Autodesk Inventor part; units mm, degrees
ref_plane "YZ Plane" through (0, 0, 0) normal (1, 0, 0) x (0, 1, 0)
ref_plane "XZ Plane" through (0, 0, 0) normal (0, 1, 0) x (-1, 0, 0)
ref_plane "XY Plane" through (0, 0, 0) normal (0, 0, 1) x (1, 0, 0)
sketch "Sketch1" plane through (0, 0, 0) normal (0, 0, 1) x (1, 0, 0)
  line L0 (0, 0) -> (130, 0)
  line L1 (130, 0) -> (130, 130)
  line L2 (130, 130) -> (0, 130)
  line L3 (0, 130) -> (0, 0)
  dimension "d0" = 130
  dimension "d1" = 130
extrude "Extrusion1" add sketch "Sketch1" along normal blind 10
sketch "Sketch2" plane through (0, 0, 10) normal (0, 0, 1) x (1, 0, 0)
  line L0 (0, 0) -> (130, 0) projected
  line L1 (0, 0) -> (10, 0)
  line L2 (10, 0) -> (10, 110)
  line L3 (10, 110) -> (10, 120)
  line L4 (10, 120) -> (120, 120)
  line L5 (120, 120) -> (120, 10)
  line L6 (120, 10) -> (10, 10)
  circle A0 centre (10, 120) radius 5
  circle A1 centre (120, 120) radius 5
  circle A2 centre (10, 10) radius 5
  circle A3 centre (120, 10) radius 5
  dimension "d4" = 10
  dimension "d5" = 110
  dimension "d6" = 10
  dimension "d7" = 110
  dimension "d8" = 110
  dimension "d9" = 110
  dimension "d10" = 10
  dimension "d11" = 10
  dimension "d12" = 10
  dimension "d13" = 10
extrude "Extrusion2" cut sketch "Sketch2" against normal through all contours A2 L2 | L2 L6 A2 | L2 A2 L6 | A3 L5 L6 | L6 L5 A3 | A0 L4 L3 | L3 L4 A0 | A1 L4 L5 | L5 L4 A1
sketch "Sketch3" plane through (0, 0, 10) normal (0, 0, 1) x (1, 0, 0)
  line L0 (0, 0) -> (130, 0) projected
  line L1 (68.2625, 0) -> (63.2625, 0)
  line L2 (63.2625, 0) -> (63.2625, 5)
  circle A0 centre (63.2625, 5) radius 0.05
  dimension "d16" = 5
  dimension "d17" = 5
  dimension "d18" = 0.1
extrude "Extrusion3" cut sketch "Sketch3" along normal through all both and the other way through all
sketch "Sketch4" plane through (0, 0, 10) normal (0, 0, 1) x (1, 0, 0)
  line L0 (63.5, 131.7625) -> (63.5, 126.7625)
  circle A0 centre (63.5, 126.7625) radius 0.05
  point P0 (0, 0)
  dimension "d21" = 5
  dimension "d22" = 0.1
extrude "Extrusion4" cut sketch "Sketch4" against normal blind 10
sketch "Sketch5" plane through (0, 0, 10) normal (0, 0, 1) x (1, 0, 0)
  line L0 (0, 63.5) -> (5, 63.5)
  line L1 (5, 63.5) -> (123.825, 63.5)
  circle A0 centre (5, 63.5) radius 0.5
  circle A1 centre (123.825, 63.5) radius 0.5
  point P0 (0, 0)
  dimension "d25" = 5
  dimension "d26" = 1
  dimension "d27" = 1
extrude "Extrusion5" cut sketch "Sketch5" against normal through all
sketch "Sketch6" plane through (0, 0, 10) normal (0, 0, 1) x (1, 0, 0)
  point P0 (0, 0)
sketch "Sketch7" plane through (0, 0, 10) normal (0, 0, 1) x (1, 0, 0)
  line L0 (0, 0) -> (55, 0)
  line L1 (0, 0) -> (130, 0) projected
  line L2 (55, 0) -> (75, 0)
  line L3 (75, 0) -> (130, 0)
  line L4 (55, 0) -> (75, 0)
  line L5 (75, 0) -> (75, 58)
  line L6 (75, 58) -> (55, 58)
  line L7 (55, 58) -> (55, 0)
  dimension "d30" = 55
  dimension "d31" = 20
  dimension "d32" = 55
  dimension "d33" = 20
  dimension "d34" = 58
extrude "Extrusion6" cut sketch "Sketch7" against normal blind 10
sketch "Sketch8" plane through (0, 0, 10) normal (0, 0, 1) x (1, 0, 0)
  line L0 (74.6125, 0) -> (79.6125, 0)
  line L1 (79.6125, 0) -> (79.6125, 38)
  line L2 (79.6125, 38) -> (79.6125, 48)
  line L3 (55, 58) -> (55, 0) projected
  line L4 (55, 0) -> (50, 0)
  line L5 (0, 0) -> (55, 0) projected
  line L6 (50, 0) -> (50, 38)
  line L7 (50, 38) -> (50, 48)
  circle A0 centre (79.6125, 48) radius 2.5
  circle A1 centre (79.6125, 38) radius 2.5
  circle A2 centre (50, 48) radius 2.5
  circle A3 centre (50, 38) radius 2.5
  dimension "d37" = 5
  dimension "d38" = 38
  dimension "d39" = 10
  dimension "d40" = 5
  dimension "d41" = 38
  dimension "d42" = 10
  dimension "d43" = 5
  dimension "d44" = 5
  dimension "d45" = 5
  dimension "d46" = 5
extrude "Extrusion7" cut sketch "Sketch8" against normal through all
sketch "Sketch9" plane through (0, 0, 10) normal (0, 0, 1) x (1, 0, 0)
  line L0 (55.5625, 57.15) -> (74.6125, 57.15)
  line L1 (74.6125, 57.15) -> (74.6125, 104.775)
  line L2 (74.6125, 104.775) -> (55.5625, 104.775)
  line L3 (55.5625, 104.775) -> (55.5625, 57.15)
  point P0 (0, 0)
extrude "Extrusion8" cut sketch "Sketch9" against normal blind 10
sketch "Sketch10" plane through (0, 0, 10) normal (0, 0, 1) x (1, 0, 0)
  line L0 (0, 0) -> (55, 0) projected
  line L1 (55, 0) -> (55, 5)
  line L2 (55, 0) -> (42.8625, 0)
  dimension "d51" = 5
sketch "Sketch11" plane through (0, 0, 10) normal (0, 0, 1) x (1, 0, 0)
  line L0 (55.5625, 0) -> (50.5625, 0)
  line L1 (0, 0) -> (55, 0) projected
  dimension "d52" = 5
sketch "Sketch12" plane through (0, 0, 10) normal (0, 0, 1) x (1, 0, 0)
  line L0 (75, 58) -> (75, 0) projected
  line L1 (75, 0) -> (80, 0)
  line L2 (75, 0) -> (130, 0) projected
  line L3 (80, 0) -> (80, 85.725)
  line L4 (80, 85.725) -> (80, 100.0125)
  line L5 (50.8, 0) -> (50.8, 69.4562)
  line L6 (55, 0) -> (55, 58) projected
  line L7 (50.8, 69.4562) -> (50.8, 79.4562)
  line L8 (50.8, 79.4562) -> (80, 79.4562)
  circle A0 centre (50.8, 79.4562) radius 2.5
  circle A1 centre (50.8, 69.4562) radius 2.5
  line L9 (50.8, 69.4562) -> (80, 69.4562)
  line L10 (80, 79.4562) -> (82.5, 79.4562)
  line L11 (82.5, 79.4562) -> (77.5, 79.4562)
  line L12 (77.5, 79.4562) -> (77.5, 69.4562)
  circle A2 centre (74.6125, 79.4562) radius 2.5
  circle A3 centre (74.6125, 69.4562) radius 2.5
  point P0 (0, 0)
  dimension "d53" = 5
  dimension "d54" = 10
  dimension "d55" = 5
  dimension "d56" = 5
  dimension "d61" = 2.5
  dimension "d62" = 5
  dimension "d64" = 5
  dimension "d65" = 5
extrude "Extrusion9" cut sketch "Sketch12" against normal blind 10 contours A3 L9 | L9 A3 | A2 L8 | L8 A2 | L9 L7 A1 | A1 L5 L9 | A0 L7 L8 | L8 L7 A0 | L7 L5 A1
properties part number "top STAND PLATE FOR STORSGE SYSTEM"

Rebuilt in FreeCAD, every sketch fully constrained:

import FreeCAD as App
import Part
import Sketcher

doc = App.newDocument("Part")
body = doc.addObject("PartDesign::Body", "Body")

# Sketch on XY plane
sketch1 = body.newObject("Sketcher::SketchObject", "Sketch")
sketch1.AttachmentSupport = (doc.getObject("XY_Plane"), [""])
sketch1.MapMode = "FlatFace"
sketch1.addGeometry(Part.LineSegment(App.Vector(0, 130, 0), App.Vector(0, 0, 0)), False)
sketch1.addGeometry(Part.LineSegment(App.Vector(0, 0, 0), App.Vector(130, 0, 0)), False)
sketch1.addGeometry(Part.LineSegment(App.Vector(130, 0, 0), App.Vector(130, 130, 0)), False)
sketch1.addGeometry(Part.LineSegment(App.Vector(130, 130, 0), App.Vector(0, 130, 0)), False)
sketch1.addConstraint(Sketcher.Constraint("Coincident", 0, 2, 1, 1))
sketch1.addConstraint(Sketcher.Constraint("Coincident", 1, 2, 2, 1))
sketch1.addConstraint(Sketcher.Constraint("Coincident", 2, 2, 3, 1))
sketch1.addConstraint(Sketcher.Constraint("Coincident", 3, 2, 0, 1))
sketch1.addConstraint(Sketcher.Constraint("Vertical", 0))
sketch1.addConstraint(Sketcher.Constraint("Horizontal", 1))
sketch1.addConstraint(Sketcher.Constraint("Vertical", 2))
sketch1.addConstraint(Sketcher.Constraint("Horizontal", 3))
sketch1.addConstraint(Sketcher.Constraint("Coincident", 0, 2, -1, 1))
sketch1.addConstraint(Sketcher.Constraint("Equal", 3, 0))
sketch1.addConstraint(Sketcher.Constraint("DistanceX", 1, 1, 1, 2, 130.0))
pad1 = body.newObject("PartDesign::Pad", "Pad")
pad1.Profile = sketch1
pad1.Length = 10

# Sketch on XY plane
sketch2 = body.newObject("Sketcher::SketchObject", "Sketch001")
sketch2.AttachmentSupport = (doc.getObject("XY_Plane"), [""])
sketch2.MapMode = "FlatFace"
sketch2.AttachmentOffset = App.Placement(App.Vector(0, 0, 10), App.Rotation())
sketch2.addGeometry(Part.Circle(App.Vector(10, 10, 0), App.Vector(0, 0, 1), 5), False)
sketch2.addGeometry(Part.Circle(App.Vector(120, 10, 0), App.Vector(0, 0, 1), 5), False)
sketch2.addGeometry(Part.Circle(App.Vector(10, 120, 0), App.Vector(0, 0, 1), 5), False)
sketch2.addGeometry(Part.Circle(App.Vector(120, 120, 0), App.Vector(0, 0, 1), 5), False)
sketch2.addConstraint(Sketcher.Constraint("Equal", 0, 1))
sketch2.addConstraint(Sketcher.Constraint("Equal", 1, 2))
sketch2.addConstraint(Sketcher.Constraint("Equal", 2, 3))
sketch2.addConstraint(Sketcher.Constraint("Horizontal", 0, 3, 1, 3))
sketch2.addConstraint(Sketcher.Constraint("Horizontal", 2, 3, 3, 3))
sketch2.addConstraint(Sketcher.Constraint("Vertical", 0, 3, 2, 3))
sketch2.addConstraint(Sketcher.Constraint("Vertical", 1, 3, 3, 3))
sketch2.addConstraint(Sketcher.Constraint("Diameter", 0, 10.0))
sketch2.addConstraint(Sketcher.Constraint("DistanceX", -1, 1, 0, 3, 10.0))
sketch2.addConstraint(Sketcher.Constraint("DistanceY", -1, 1, 0, 3, 10.0))
sketch2.addConstraint(Sketcher.Constraint("DistanceX", 0, 3, 1, 3, 110.0))
sketch2.addConstraint(Sketcher.Constraint("DistanceY", 0, 3, 2, 3, 110.0))
pocket1 = body.newObject("PartDesign::Pocket", "Pocket")
pocket1.Profile = sketch2
pocket1.Type = "ThroughAll"

# Sketch on XY plane
sketch3 = body.newObject("Sketcher::SketchObject", "Sketch002")
sketch3.AttachmentSupport = (doc.getObject("XY_Plane"), [""])
sketch3.MapMode = "FlatFace"
sketch3.AttachmentOffset = App.Placement(App.Vector(0, 0, 10), App.Rotation())
sketch3.addGeometry(Part.Circle(App.Vector(63.26, 5, 0), App.Vector(0, 0, 1), 0.05), False)
sketch3.addConstraint(Sketcher.Constraint("Diameter", 0, 0.1))
sketch3.addConstraint(Sketcher.Constraint("DistanceY", -1, 1, 0, 3, 5.0))
sketch3.addConstraint(Sketcher.Constraint("DistanceX", -1, 1, 0, 3, 63.2625))
pocket2 = body.newObject("PartDesign::Pocket", "Pocket001")
pocket2.Profile = sketch3
pocket2.Type = "ThroughAll"
pocket2.Midplane = True

# Sketch on XY plane
sketch4 = body.newObject("Sketcher::SketchObject", "Sketch003")
sketch4.AttachmentSupport = (doc.getObject("XY_Plane"), [""])
sketch4.MapMode = "FlatFace"
sketch4.AttachmentOffset = App.Placement(App.Vector(0, 0, 10), App.Rotation())
sketch4.addGeometry(Part.Circle(App.Vector(63.5, 126.76, 0), App.Vector(0, 0, 1), 0.05), False)
sketch4.addConstraint(Sketcher.Constraint("Diameter", 0, 0.1))
sketch4.addConstraint(Sketcher.Constraint("DistanceX", -1, 1, 0, 3, 63.5))
sketch4.addConstraint(Sketcher.Constraint("DistanceY", -1, 1, 0, 3, 126.7625))
pocket3 = body.newObject("PartDesign::Pocket", "Pocket002")
pocket3.Profile = sketch4
pocket3.Length = 10

# Sketch on XY plane
sketch5 = body.newObject("Sketcher::SketchObject", "Sketch004")
sketch5.AttachmentSupport = (doc.getObject("XY_Plane"), [""])
sketch5.MapMode = "FlatFace"
sketch5.AttachmentOffset = App.Placement(App.Vector(0, 0, 10), App.Rotation())
sketch5.addGeometry(Part.Circle(App.Vector(5, 63.5, 0), App.Vector(0, 0, 1), 0.5), False)
sketch5.addGeometry(Part.Circle(App.Vector(123.8, 63.5, 0), App.Vector(0, 0, 1), 0.5), False)
sketch5.addConstraint(Sketcher.Constraint("Equal", 0, 1))
sketch5.addConstraint(Sketcher.Constraint("Horizontal", 0, 3, 1, 3))
sketch5.addConstraint(Sketcher.Constraint("Diameter", 0, 1.0))
sketch5.addConstraint(Sketcher.Constraint("DistanceX", -1, 1, 0, 3, 5.0))
sketch5.addConstraint(Sketcher.Constraint("DistanceY", -1, 1, 0, 3, 63.5))
sketch5.addConstraint(Sketcher.Constraint("DistanceX", -1, 1, 1, 3, 123.825))
pocket4 = body.newObject("PartDesign::Pocket", "Pocket003")
pocket4.Profile = sketch5
pocket4.Type = "ThroughAll"

# Sketch on XY plane
sketch6 = body.newObject("Sketcher::SketchObject", "Sketch005")
sketch6.AttachmentSupport = (doc.getObject("XY_Plane"), [""])
sketch6.MapMode = "FlatFace"
sketch6.AttachmentOffset = App.Placement(App.Vector(0, 0, 10), App.Rotation())
sketch6.addGeometry(Part.LineSegment(App.Vector(55, 58, 0), App.Vector(55, 0, 0)), False)
sketch6.addGeometry(Part.LineSegment(App.Vector(55, 0, 0), App.Vector(75, 0, 0)), False)
sketch6.addGeometry(Part.LineSegment(App.Vector(75, 0, 0), App.Vector(75, 58, 0)), False)
sketch6.addGeometry(Part.LineSegment(App.Vector(75, 58, 0), App.Vector(55, 58, 0)), False)
sketch6.addConstraint(Sketcher.Constraint("Coincident", 0, 2, 1, 1))
sketch6.addConstraint(Sketcher.Constraint("Coincident", 1, 2, 2, 1))
sketch6.addConstraint(Sketcher.Constraint("Coincident", 2, 2, 3, 1))
sketch6.addConstraint(Sketcher.Constraint("Coincident", 3, 2, 0, 1))
sketch6.addConstraint(Sketcher.Constraint("Vertical", 0))
sketch6.addConstraint(Sketcher.Constraint("Horizontal", 1))
sketch6.addConstraint(Sketcher.Constraint("Vertical", 2))
sketch6.addConstraint(Sketcher.Constraint("Horizontal", 3))
sketch6.addConstraint(Sketcher.Constraint("PointOnObject", 0, 2, -1))
sketch6.addConstraint(Sketcher.Constraint("DistanceX", 1, 1, 1, 2, 20.0))
sketch6.addConstraint(Sketcher.Constraint("DistanceY", 0, 2, 0, 1, 58.0))
sketch6.addConstraint(Sketcher.Constraint("DistanceX", -1, 1, 0, 2, 55.0))
pocket5 = body.newObject("PartDesign::Pocket", "Pocket004")
pocket5.Profile = sketch6
pocket5.Length = 10

# Sketch on XY plane
sketch7 = body.newObject("Sketcher::SketchObject", "Sketch006")
sketch7.AttachmentSupport = (doc.getObject("XY_Plane"), [""])
sketch7.MapMode = "FlatFace"
sketch7.AttachmentOffset = App.Placement(App.Vector(0, 0, 10), App.Rotation())
sketch7.addGeometry(Part.Circle(App.Vector(79.6, 38, 0), App.Vector(0, 0, 1), 2.5), False)
sketch7.addGeometry(Part.Circle(App.Vector(79.6, 48, 0), App.Vector(0, 0, 1), 2.5), False)
sketch7.addGeometry(Part.Circle(App.Vector(50, 38, 0), App.Vector(0, 0, 1), 2.5), False)
sketch7.addGeometry(Part.Circle(App.Vector(50, 48, 0), App.Vector(0, 0, 1), 2.5), False)
sketch7.addConstraint(Sketcher.Constraint("Equal", 0, 1))
sketch7.addConstraint(Sketcher.Constraint("Equal", 1, 2))
sketch7.addConstraint(Sketcher.Constraint("Equal", 2, 3))
sketch7.addConstraint(Sketcher.Constraint("Horizontal", 0, 3, 2, 3))
sketch7.addConstraint(Sketcher.Constraint("Horizontal", 1, 3, 3, 3))
sketch7.addConstraint(Sketcher.Constraint("Vertical", 0, 3, 1, 3))
sketch7.addConstraint(Sketcher.Constraint("Vertical", 2, 3, 3, 3))
sketch7.addConstraint(Sketcher.Constraint("Diameter", 0, 5.0))
sketch7.addConstraint(Sketcher.Constraint("DistanceY", -1, 1, 0, 3, 38.0))
sketch7.addConstraint(Sketcher.Constraint("DistanceY", 0, 3, 1, 3, 10.0))
sketch7.addConstraint(Sketcher.Constraint("DistanceX", -1, 1, 2, 3, 50.0))
sketch7.addConstraint(Sketcher.Constraint("DistanceX", -1, 1, 0, 3, 79.6125))
pocket6 = body.newObject("PartDesign::Pocket", "Pocket005")
pocket6.Profile = sketch7
pocket6.Type = "ThroughAll"

# Sketch on XY plane
sketch8 = body.newObject("Sketcher::SketchObject", "Sketch007")
sketch8.AttachmentSupport = (doc.getObject("XY_Plane"), [""])
sketch8.MapMode = "FlatFace"
sketch8.AttachmentOffset = App.Placement(App.Vector(0, 0, 10), App.Rotation())
sketch8.addGeometry(Part.LineSegment(App.Vector(56, 105, 0), App.Vector(56, 57, 0)), False)
sketch8.addGeometry(Part.LineSegment(App.Vector(56, 57, 0), App.Vector(75, 57, 0)), False)
sketch8.addGeometry(Part.LineSegment(App.Vector(75, 57, 0), App.Vector(75, 105, 0)), False)
sketch8.addGeometry(Part.LineSegment(App.Vector(75, 105, 0), App.Vector(56, 105, 0)), False)
sketch8.addConstraint(Sketcher.Constraint("Coincident", 0, 2, 1, 1))
sketch8.addConstraint(Sketcher.Constraint("Coincident", 1, 2, 2, 1))
sketch8.addConstraint(Sketcher.Constraint("Coincident", 2, 2, 3, 1))
sketch8.addConstraint(Sketcher.Constraint("Coincident", 3, 2, 0, 1))
sketch8.addConstraint(Sketcher.Constraint("Vertical", 0))
sketch8.addConstraint(Sketcher.Constraint("Horizontal", 1))
sketch8.addConstraint(Sketcher.Constraint("Vertical", 2))
sketch8.addConstraint(Sketcher.Constraint("Horizontal", 3))
sketch8.addConstraint(Sketcher.Constraint("DistanceX", 1, 1, 1, 2, 19.05))
sketch8.addConstraint(Sketcher.Constraint("DistanceY", 0, 2, 0, 1, 47.625))
sketch8.addConstraint(Sketcher.Constraint("DistanceY", -1, 1, 0, 2, 57.15))
sketch8.addConstraint(Sketcher.Constraint("DistanceX", -1, 1, 0, 2, 55.5625))
pocket7 = body.newObject("PartDesign::Pocket", "Pocket006")
pocket7.Profile = sketch8
pocket7.Length = 10

# Sketch on XY plane
sketch9 = body.newObject("Sketcher::SketchObject", "Sketch008")
sketch9.AttachmentSupport = (doc.getObject("XY_Plane"), [""])
sketch9.MapMode = "FlatFace"
sketch9.AttachmentOffset = App.Placement(App.Vector(0, 0, 10), App.Rotation())
sketch9.addGeometry(Part.Circle(App.Vector(74.6, 69.5, 0), App.Vector(0, 0, 1), 2.5), False)
sketch9.addGeometry(Part.Circle(App.Vector(74.6, 79.5, 0), App.Vector(0, 0, 1), 2.5), False)
sketch9.addGeometry(Part.Circle(App.Vector(50.8, 69.5, 0), App.Vector(0, 0, 1), 2.5), False)
sketch9.addGeometry(Part.Circle(App.Vector(50.8, 79.5, 0), App.Vector(0, 0, 1), 2.5), False)
sketch9.addConstraint(Sketcher.Constraint("Equal", 0, 1))
sketch9.addConstraint(Sketcher.Constraint("Equal", 1, 2))
sketch9.addConstraint(Sketcher.Constraint("Equal", 2, 3))
sketch9.addConstraint(Sketcher.Constraint("Horizontal", 0, 3, 2, 3))
sketch9.addConstraint(Sketcher.Constraint("Horizontal", 1, 3, 3, 3))
sketch9.addConstraint(Sketcher.Constraint("Vertical", 0, 3, 1, 3))
sketch9.addConstraint(Sketcher.Constraint("Vertical", 2, 3, 3, 3))
sketch9.addConstraint(Sketcher.Constraint("Diameter", 0, 5.0))
sketch9.addConstraint(Sketcher.Constraint("DistanceY", 0, 3, 1, 3, 10.0))
sketch9.addConstraint(Sketcher.Constraint("DistanceX", -1, 1, 2, 3, 50.8))
sketch9.addConstraint(Sketcher.Constraint("DistanceX", -1, 1, 0, 3, 74.6125))
sketch9.addConstraint(Sketcher.Constraint("DistanceY", -1, 1, 0, 3, 69.4562))
pocket8 = body.newObject("PartDesign::Pocket", "Pocket007")
pocket8.Profile = sketch9
pocket8.Length = 10

doc.recompute()
